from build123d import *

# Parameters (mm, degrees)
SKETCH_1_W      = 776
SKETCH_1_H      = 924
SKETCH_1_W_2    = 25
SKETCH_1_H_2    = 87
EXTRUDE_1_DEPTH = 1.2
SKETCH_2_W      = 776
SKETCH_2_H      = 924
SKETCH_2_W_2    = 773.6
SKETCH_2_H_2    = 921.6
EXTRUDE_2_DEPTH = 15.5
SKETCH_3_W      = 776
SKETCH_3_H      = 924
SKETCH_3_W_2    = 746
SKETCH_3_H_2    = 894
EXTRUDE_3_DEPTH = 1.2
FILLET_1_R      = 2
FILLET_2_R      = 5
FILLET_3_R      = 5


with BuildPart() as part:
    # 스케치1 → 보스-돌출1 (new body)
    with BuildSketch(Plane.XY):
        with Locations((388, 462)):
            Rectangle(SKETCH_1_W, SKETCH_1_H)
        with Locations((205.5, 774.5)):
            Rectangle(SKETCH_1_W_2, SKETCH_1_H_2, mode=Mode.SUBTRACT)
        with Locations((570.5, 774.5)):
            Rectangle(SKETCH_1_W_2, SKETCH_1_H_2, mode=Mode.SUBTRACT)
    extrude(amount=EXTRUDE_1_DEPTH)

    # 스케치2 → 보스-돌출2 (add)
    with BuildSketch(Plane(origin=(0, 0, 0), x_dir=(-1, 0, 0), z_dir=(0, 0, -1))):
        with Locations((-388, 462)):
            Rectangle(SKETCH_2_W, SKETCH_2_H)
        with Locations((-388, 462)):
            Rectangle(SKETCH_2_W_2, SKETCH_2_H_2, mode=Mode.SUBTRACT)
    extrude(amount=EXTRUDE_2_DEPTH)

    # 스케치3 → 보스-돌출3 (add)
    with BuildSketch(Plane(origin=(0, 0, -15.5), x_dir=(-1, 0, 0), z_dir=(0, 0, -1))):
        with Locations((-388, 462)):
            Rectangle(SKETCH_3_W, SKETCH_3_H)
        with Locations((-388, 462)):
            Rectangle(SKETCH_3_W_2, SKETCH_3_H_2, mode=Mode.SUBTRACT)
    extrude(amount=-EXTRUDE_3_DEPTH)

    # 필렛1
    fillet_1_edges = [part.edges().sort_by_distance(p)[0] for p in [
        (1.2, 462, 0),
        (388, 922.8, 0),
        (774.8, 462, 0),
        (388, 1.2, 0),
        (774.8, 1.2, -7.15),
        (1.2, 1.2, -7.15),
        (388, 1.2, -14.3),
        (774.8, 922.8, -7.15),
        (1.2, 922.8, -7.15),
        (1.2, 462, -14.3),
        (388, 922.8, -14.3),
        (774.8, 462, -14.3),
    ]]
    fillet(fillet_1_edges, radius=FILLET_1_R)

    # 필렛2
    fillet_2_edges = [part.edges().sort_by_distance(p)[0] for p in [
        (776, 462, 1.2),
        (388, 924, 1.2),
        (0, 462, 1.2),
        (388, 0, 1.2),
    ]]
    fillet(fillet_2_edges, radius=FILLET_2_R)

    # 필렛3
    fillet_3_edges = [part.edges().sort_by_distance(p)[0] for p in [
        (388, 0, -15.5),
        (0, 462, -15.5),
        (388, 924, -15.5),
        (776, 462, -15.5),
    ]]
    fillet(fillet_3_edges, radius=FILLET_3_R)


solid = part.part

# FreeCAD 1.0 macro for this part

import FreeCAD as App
import Part
import Sketcher

V = App.Vector
Q = App.Units.Quantity


def edges_at(feature, points):
    """Names of the edges that pass closest to the given points."""
    edges = feature.Shape.Edges
    near = lambda p: min(range(len(edges)), key=lambda i: edges[i].distToShape(Part.Vertex(*p))[0])
    return sorted({f"Edge{near(p) + 1}" for p in points})


def add_polygon(sketch, points):
    """Adds a closed chain of lines whose ends are joined by coincident constraints."""
    first, n = sketch.GeometryCount, len(points)
    for a, b in zip(points, points[1:] + points[:1]):
        sketch.addGeometry(Part.LineSegment(App.Vector(*a, 0), App.Vector(*b, 0)), False)
    for i in range(n):
        sketch.addConstraint(Sketcher.Constraint("Coincident", first + i, 2, first + (i + 1) % n, 1))

doc = App.newDocument("Part")
body = doc.addObject("PartDesign::Body", "Body")

sketch1 = body.newObject("Sketcher::SketchObject", "Sketch")
sketch1.AttachmentSupport = (doc.getObject("XY_Plane"), [""])
sketch1.MapMode = "FlatFace"
add_polygon(sketch1, [(0, 924), (0, 0), (776, 0), (776, 924)])
add_polygon(sketch1, [(218, 731), (193, 731), (193, 818), (218, 818)])
add_polygon(sketch1, [(583, 731), (558, 731), (558, 818), (583, 818)])
sketch1.addConstraint(Sketcher.Constraint("Vertical", 0))
sketch1.addConstraint(Sketcher.Constraint("Horizontal", 1))
sketch1.addConstraint(Sketcher.Constraint("Vertical", 2))
sketch1.addConstraint(Sketcher.Constraint("Horizontal", 3))
sketch1.addConstraint(Sketcher.Constraint("Horizontal", 4))
sketch1.addConstraint(Sketcher.Constraint("Vertical", 5))
sketch1.addConstraint(Sketcher.Constraint("Horizontal", 6))
sketch1.addConstraint(Sketcher.Constraint("Vertical", 7))
sketch1.addConstraint(Sketcher.Constraint("Horizontal", 8))
sketch1.addConstraint(Sketcher.Constraint("Vertical", 9))
sketch1.addConstraint(Sketcher.Constraint("Horizontal", 10))
sketch1.addConstraint(Sketcher.Constraint("Vertical", 11))
sketch1.addConstraint(Sketcher.Constraint("Coincident", 0, 2, -1, 1))
sketch1.addConstraint(Sketcher.Constraint("Horizontal", 7, 2, 8, 2))
sketch1.addConstraint(Sketcher.Constraint("Horizontal", 6, 2, 9, 2))
sketch1.addConstraint(Sketcher.Constraint("Equal", 6, 8))
sketch1.addConstraint(Sketcher.Constraint("DistanceX", 1, 1, 1, 2, Q("776 mm")))
sketch1.addConstraint(Sketcher.Constraint("DistanceX", 4, 2, 4, 1, Q("25 mm")))
sketch1.addConstraint(Sketcher.Constraint("DistanceY", 0, 2, 0, 1, Q("924 mm")))
sketch1.addConstraint(Sketcher.Constraint("DistanceY", 5, 1, 5, 2, Q("87 mm")))
sketch1.addConstraint(Sketcher.Constraint("DistanceX", -1, 1, 4, 2, Q("193 mm")))
sketch1.addConstraint(Sketcher.Constraint("DistanceY", -1, 1, 4, 2, Q("731 mm")))
sketch1.addConstraint(Sketcher.Constraint("DistanceX", -1, 1, 8, 2, Q("558 mm")))
pad1 = body.newObject("PartDesign::Pad", "Pad")
pad1.Profile = sketch1
pad1.Length = 1.2

sketch2 = body.newObject("Sketcher::SketchObject", "Sketch001")
sketch2.AttachmentSupport = (doc.getObject("XY_Plane"), [""])
sketch2.MapMode = "FlatFace"
add_polygon(sketch2, [(776, 924), (776, 0), (0, 0), (0, 924)])
add_polygon(sketch2, [(1.2, 1.2), (774.8, 1.2), (774.8, 922.8), (1.2, 922.8)])
sketch2.addConstraint(Sketcher.Constraint("Vertical", 0))
sketch2.addConstraint(Sketcher.Constraint("Horizontal", 1))
sketch2.addConstraint(Sketcher.Constraint("Vertical", 2))
sketch2.addConstraint(Sketcher.Constraint("Horizontal", 3))
sketch2.addConstraint(Sketcher.Constraint("Horizontal", 4))
sketch2.addConstraint(Sketcher.Constraint("Vertical", 5))
sketch2.addConstraint(Sketcher.Constraint("Horizontal", 6))
sketch2.addConstraint(Sketcher.Constraint("Vertical", 7))
sketch2.addConstraint(Sketcher.Constraint("Coincident", 1, 2, -1, 1))
sketch2.addConstraint(Sketcher.Constraint("DistanceX", 1, 2, 1, 1, Q("776 mm")))
sketch2.addConstraint(Sketcher.Constraint("DistanceY", 0, 2, 0, 1, Q("924 mm")))
sketch2.addConstraint(Sketcher.Constraint("DistanceX", 4, 1, 4, 2, Q("773.6 mm")))
sketch2.addConstraint(Sketcher.Constraint("DistanceY", 5, 1, 5, 2, Q("921.6 mm")))
sketch2.addConstraint(Sketcher.Constraint("DistanceX", -1, 1, 4, 2, Q("774.8 mm")))
sketch2.addConstraint(Sketcher.Constraint("DistanceY", -1, 1, 4, 2, Q("1.2 mm")))
pad2 = body.newObject("PartDesign::Pad", "Pad001")
pad2.Profile = sketch2
pad2.Length = 15.5
pad2.Reversed = True

sketch3 = body.newObject("Sketcher::SketchObject", "Sketch002")
sketch3.AttachmentSupport = (doc.getObject("XY_Plane"), [""])
sketch3.MapMode = "FlatFace"
sketch3.AttachmentOffset = App.Placement(V(0, 0, -15.5), App.Rotation())
add_polygon(sketch3, [(776, 924), (776, 0), (0, 0), (0, 924)])
add_polygon(sketch3, [(15, 15), (761, 15), (761, 909), (15, 909)])
sketch3.addConstraint(Sketcher.Constraint("Vertical", 0))
sketch3.addConstraint(Sketcher.Constraint("Horizontal", 1))
sketch3.addConstraint(Sketcher.Constraint("Vertical", 2))
sketch3.addConstraint(Sketcher.Constraint("Horizontal", 3))
sketch3.addConstraint(Sketcher.Constraint("Horizontal", 4))
sketch3.addConstraint(Sketcher.Constraint("Vertical", 5))
sketch3.addConstraint(Sketcher.Constraint("Horizontal", 6))
sketch3.addConstraint(Sketcher.Constraint("Vertical", 7))
sketch3.addConstraint(Sketcher.Constraint("Coincident", 1, 2, -1, 1))
sketch3.addConstraint(Sketcher.Constraint("DistanceX", 1, 2, 1, 1, Q("776 mm")))
sketch3.addConstraint(Sketcher.Constraint("DistanceX", 4, 1, 4, 2, Q("746 mm")))
sketch3.addConstraint(Sketcher.Constraint("DistanceY", 0, 2, 0, 1, Q("924 mm")))
sketch3.addConstraint(Sketcher.Constraint("DistanceY", 5, 1, 5, 2, Q("894 mm")))
sketch3.addConstraint(Sketcher.Constraint("DistanceX", -1, 1, 4, 2, Q("761 mm")))
sketch3.addConstraint(Sketcher.Constraint("DistanceY", -1, 1, 4, 2, Q("15 mm")))
pad3 = body.newObject("PartDesign::Pad", "Pad002")
pad3.Profile = sketch3
pad3.Length = 1.2
doc.recompute()

fillet = body.newObject("PartDesign::Fillet", "Fillet")
fillet.Base = (pad3, edges_at(pad3, [
    (1.2, 462, 0),
    (388, 922.8, 0),
    (774.8, 462, 0),
    (388, 1.2, 0),
    (774.8, 1.2, -7.15),
    (1.2, 1.2, -7.15),
    (388, 1.2, -14.3),
    (774.8, 922.8, -7.15),
    (1.2, 922.8, -7.15),
    (1.2, 462, -14.3),
    (388, 922.8, -14.3),
    (774.8, 462, -14.3),
]))
fillet.Radius = 2
doc.recompute()

fillet2 = body.newObject("PartDesign::Fillet", "Fillet001")
fillet2.Base = (fillet, edges_at(fillet, [
    (776, 462, 1.2),
    (388, 924, 1.2),
    (0, 462, 1.2),
    (388, 0, 1.2),
]))
fillet2.Radius = 5
doc.recompute()

fillet3 = body.newObject("PartDesign::Fillet", "Fillet002")
fillet3.Base = (fillet2, edges_at(fillet2, [
    (388, 0, -15.5),
    (0, 462, -15.5),
    (388, 924, -15.5),
    (776, 462, -15.5),
]))
fillet3.Radius = 5

doc.recompute()
